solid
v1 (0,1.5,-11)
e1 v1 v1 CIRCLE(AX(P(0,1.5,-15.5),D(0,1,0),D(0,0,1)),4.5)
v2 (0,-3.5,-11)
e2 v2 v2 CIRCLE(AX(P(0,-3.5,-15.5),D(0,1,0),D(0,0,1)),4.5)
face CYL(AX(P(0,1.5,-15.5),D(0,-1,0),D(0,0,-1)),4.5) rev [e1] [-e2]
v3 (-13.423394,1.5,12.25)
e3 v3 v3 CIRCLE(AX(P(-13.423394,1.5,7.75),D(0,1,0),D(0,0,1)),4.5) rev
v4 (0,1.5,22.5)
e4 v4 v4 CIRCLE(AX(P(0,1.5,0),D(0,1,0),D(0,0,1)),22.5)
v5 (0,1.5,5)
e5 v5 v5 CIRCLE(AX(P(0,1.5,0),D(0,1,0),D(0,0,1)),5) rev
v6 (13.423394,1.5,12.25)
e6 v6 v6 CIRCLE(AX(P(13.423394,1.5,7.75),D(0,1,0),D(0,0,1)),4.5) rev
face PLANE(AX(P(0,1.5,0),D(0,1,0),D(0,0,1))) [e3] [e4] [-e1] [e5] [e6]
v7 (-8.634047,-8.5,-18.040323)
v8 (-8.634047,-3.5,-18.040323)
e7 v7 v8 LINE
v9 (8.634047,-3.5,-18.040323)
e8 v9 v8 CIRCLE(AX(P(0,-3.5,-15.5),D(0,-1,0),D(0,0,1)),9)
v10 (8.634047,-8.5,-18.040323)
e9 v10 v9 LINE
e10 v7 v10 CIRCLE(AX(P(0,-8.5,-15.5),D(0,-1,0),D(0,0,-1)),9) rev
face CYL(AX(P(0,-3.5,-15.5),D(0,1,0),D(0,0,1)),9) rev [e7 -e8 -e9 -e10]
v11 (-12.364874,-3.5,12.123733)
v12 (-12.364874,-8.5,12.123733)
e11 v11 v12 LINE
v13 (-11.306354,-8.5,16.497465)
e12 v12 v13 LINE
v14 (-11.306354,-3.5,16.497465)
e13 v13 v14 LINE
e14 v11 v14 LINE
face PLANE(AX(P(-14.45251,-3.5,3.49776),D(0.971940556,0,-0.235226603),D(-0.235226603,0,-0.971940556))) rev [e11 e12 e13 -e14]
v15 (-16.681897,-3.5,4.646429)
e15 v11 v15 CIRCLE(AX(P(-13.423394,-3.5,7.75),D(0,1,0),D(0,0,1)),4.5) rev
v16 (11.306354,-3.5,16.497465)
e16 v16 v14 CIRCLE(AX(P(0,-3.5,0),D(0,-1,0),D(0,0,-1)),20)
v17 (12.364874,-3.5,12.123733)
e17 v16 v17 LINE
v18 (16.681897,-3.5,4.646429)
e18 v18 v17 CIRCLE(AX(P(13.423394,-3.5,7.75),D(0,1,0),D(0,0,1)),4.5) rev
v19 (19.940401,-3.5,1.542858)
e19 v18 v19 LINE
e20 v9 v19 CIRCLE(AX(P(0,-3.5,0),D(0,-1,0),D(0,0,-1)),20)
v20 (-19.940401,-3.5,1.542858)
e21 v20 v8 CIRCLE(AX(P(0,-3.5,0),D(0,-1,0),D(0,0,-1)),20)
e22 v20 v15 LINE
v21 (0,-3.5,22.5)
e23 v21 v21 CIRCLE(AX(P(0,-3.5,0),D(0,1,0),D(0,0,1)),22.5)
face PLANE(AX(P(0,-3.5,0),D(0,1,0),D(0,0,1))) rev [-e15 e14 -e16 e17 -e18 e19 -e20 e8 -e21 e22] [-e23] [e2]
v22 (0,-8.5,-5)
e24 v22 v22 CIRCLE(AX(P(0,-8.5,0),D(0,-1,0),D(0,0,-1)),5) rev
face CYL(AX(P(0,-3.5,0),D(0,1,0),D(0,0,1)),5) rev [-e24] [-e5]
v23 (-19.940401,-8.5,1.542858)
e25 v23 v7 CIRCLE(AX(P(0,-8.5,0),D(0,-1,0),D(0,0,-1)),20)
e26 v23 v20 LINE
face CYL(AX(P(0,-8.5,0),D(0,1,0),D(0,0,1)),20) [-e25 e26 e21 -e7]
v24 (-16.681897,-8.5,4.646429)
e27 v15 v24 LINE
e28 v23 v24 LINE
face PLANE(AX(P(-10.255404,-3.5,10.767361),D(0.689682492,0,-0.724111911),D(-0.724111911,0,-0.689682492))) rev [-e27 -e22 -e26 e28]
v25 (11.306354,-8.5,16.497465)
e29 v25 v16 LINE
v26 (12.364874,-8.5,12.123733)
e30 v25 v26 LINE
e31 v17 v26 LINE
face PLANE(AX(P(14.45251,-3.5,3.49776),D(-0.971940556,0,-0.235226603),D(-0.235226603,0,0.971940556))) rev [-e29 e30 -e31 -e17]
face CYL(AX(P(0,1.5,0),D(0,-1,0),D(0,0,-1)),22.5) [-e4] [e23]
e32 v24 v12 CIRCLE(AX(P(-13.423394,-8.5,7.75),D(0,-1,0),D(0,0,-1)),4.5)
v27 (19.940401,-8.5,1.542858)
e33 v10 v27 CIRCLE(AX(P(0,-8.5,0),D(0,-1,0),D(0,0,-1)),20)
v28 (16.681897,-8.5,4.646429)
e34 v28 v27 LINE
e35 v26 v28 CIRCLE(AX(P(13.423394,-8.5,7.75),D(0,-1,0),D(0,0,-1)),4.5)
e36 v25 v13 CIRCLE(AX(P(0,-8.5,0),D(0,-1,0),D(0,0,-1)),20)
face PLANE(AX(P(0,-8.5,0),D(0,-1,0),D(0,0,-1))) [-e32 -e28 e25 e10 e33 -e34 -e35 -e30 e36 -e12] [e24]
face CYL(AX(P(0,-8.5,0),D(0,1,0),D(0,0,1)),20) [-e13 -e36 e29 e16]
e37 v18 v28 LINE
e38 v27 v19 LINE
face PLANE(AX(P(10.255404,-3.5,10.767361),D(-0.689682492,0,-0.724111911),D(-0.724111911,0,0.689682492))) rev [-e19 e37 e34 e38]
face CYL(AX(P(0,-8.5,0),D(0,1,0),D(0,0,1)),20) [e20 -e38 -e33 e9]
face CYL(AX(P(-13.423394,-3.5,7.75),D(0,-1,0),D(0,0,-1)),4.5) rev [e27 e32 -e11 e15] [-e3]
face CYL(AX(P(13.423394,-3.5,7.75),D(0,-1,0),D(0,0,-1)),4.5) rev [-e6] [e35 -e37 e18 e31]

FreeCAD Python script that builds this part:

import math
import FreeCAD as App
import Part
import Sketcher
Q = App.Units.Quantity

doc = App.newDocument("Part")
body = doc.addObject("PartDesign::Body", "Body")

# Sketch on XZ plane
sketch1 = body.newObject("Sketcher::SketchObject", "Sketch")
sketch1.AttachmentSupport = (doc.getObject("XZ_Plane"), [""])
sketch1.MapMode = "FlatFace"
sketch1.addGeometry(Part.Circle(App.Vector(0, 0, 0), App.Vector(0, 0, 1), 22.5), False)
sketch1.addConstraint([
    Sketcher.Constraint("Coincident", 0, 3, -1, 1),
    Sketcher.Constraint("Diameter", 0, Q("45 mm")),
])
pad1 = body.newObject("PartDesign::Pad", "Pad")
pad1.Profile = sketch1
pad1.Length = 7
pad1.Midplane = True

# Sketch on XZ plane
sketch2 = body.newObject("Sketcher::SketchObject", "Sketch001")
sketch2.AttachmentSupport = (doc.getObject("XZ_Plane"), [""])
sketch2.MapMode = "FlatFace"
sketch2.AttachmentOffset = App.Placement(App.Vector(0, 0, -3.5), App.Rotation())
sketch2.addGeometry([
    Part.Circle(App.Vector(0, -15.5, 0), App.Vector(0, 0, 1), 9),
    Part.Circle(App.Vector(13.423394, 7.75, 0), App.Vector(0, 0, 1), 9),
    Part.Circle(App.Vector(-13.423394, 7.75, 0), App.Vector(0, 0, 1), 9),
], False)
sketch2.addConstraint([
    Sketcher.Constraint("Equal", 0, 1),
    Sketcher.Constraint("Equal", 1, 2),
    Sketcher.Constraint("Symmetric", 1, 3, 2, 3, -2),
    Sketcher.Constraint("PointOnObject", 0, 3, -2),
    Sketcher.Constraint("Diameter", 0, Q("18 mm")),
    Sketcher.Constraint("DistanceY", 0, 3, -1, 1, Q("15.5 mm")),
    Sketcher.Constraint("DistanceY", -1, 1, 1, 3, Q("7.75 mm")),
    Sketcher.Constraint("DistanceX", -1, 1, 1, 3, Q("13.423394 mm")),
])
pocket1 = body.newObject("PartDesign::Pocket", "Pocket")
pocket1.Profile = sketch2
pocket1.Type = "ThroughAll"
pocket1.Reversed = True

# Sketch on XZ plane
sketch3 = body.newObject("Sketcher::SketchObject", "Sketch002")
sketch3.AttachmentSupport = (doc.getObject("XZ_Plane"), [""])
sketch3.MapMode = "FlatFace"
sketch3.AttachmentOffset = App.Placement(App.Vector(0, 0, -3.5), App.Rotation())
sketch3.addGeometry(Part.Circle(App.Vector(0, 0, 0), App.Vector(0, 0, 1), 5), False)
sketch3.addConstraint([
    Sketcher.Constraint("Coincident", 0, 3, -1, 1),
    Sketcher.Constraint("Diameter", 0, Q("10 mm")),
])
pocket2 = body.newObject("PartDesign::Pocket", "Pocket001")
pocket2.Profile = sketch3
pocket2.Type = "ThroughAll"
pocket2.Reversed = True

# Sketch on XZ plane
sketch4 = body.newObject("Sketcher::SketchObject", "Sketch003")
sketch4.AttachmentSupport = (doc.getObject("XZ_Plane"), [""])
sketch4.MapMode = "FlatFace"
sketch4.AttachmentOffset = App.Placement(App.Vector(0, 0, 3.5), App.Rotation())
sketch4.addGeometry([
    Part.ArcOfCircle(Part.Circle(App.Vector(0, 0, 0), App.Vector(0, 0, 1), 20), math.radians(-64.424357), math.radians(4.424357)),  # 0
    Part.ArcOfCircle(Part.Circle(App.Vector(13.423394, 7.75, 0), App.Vector(0, 0, 1), 9), math.radians(103.604981), math.radians(316.395019)),  # 1
    Part.ArcOfCircle(Part.Circle(App.Vector(0, 0, 0), App.Vector(0, 0, 1), 20), math.radians(55.575643), math.radians(124.424357)),  # 2
    Part.ArcOfCircle(Part.Circle(App.Vector(-13.423394, 7.75, 0), App.Vector(0, 0, 1), 9), math.radians(-136.395019), math.radians(76.395019)),  # 3
    Part.ArcOfCircle(Part.Circle(App.Vector(0, 0, 0), App.Vector(0, 0, 1), 20), math.radians(175.575643), math.radians(244.424357)),  # 4
    Part.ArcOfCircle(Part.Circle(App.Vector(0, -15.5, 0), App.Vector(0, 0, 1), 9), math.radians(-16.395019), math.radians(196.395019)),  # 5
    Part.Circle(App.Vector(0, 0, 0), App.Vector(0, 0, 1), 5),  # 6
], False)
sketch4.addConstraint([
    Sketcher.Constraint("Coincident", 0, 2, 1, 2),
    Sketcher.Constraint("Coincident", 1, 1, 2, 1),
    Sketcher.Constraint("Coincident", 2, 2, 3, 2),
    Sketcher.Constraint("Coincident", 3, 1, 4, 1),
    Sketcher.Constraint("Coincident", 4, 2, 5, 2),
    Sketcher.Constraint("Coincident", 5, 1, 0, 1),
    Sketcher.Constraint("Coincident", 0, 3, -1, 1),
    Sketcher.Constraint("Coincident", 2, 3, -1, 1),
    Sketcher.Constraint("Coincident", 4, 3, -1, 1),
    Sketcher.Constraint("Coincident", 6, 3, -1, 1),
    Sketcher.Constraint("Equal", 0, 2),
    Sketcher.Constraint("Equal", 1, 3),
    Sketcher.Constraint("Equal", 2, 4),
    Sketcher.Constraint("Equal", 3, 5),
    Sketcher.Constraint("Symmetric", 1, 3, 3, 3, -2),
    Sketcher.Constraint("PointOnObject", 5, 3, -2),
    Sketcher.Constraint("Diameter", 6, Q("10 mm")),
    Sketcher.Constraint("Radius", 0, Q("20 mm")),
    Sketcher.Constraint("Radius", 1, Q("9 mm")),
    Sketcher.Constraint("DistanceY", 5, 3, -1, 1, Q("15.5 mm")),
    Sketcher.Constraint("DistanceY", -1, 1, 1, 3, Q("7.75 mm")),
    Sketcher.Constraint("DistanceX", -1, 1, 0, 2, Q("19.940401 mm")),
])
pad2 = body.newObject("PartDesign::Pad", "Pad001")
pad2.Profile = sketch4
pad2.Length = 5

# Sketch on XZ plane
sketch5 = body.newObject("Sketcher::SketchObject", "Sketch004")
sketch5.AttachmentSupport = (doc.getObject("XZ_Plane"), [""])
sketch5.MapMode = "FlatFace"
sketch5.AttachmentOffset = App.Placement(App.Vector(0, 0, 3.5), App.Rotation())
sketch5.addGeometry([
    Part.LineSegment(App.Vector(-16.681897, 4.646429, 0), App.Vector(-19.940401, 1.542858, 0)),  # 0
    Part.ArcOfCircle(Part.Circle(App.Vector(-13.423394, 7.75, 0), App.Vector(0, 0, 1), 9), math.radians(-136.395019), math.radians(76.395019)),  # 1
    Part.LineSegment(App.Vector(-11.306354, 16.497465, 0), App.Vector(-12.364874, 12.123733, 0)),  # 2
    Part.ArcOfCircle(Part.Circle(App.Vector(-13.423394, 7.75, 0), App.Vector(0, 0, 1), 4.5), math.radians(-136.395019), math.radians(76.395019)),  # 3
    Part.LineSegment(App.Vector(12.364874, 12.123733, 0), App.Vector(11.306354, 16.497465, 0)),  # 4
    Part.ArcOfCircle(Part.Circle(App.Vector(13.423394, 7.75, 0), App.Vector(0, 0, 1), 9), math.radians(103.604981), math.radians(316.395019)),  # 5
    Part.LineSegment(App.Vector(19.940401, 1.542858, 0), App.Vector(16.681897, 4.646429, 0)),  # 6
    Part.ArcOfCircle(Part.Circle(App.Vector(13.423394, 7.75, 0), App.Vector(0, 0, 1), 4.5), math.radians(103.604981), math.radians(316.395019)),  # 7
], False)
sketch5.addConstraint([
    Sketcher.Constraint("Coincident", 0, 2, 1, 1),
    Sketcher.Constraint("Coincident", 1, 2, 2, 1),
    Sketcher.Constraint("Coincident", 2, 2, 3, 2),
    Sketcher.Constraint("Coincident", 3, 1, 0, 1),
    Sketcher.Constraint("Coincident", 4, 2, 5, 1),
    Sketcher.Constraint("Coincident", 5, 2, 6, 1),
    Sketcher.Constraint("Coincident", 6, 2, 7, 2),
    Sketcher.Constraint("Coincident", 7, 1, 4, 1),
    Sketcher.Constraint("Coincident", 3, 3, 1, 3),
    Sketcher.Constraint("Coincident", 7, 3, 5, 3),
    Sketcher.Constraint("Equal", 1, 5),
    Sketcher.Constraint("Equal", 3, 7),
    Sketcher.Constraint("Symmetric", 1, 3, 5, 3, -2),
    Sketcher.Constraint("Horizontal", 1, 2, 4, 2),
    Sketcher.Constraint("Horizontal", 0, 2, 5, 2),
    Sketcher.Constraint("Horizontal", 3, 1, 6, 2),
    Sketcher.Constraint("Horizontal", 2, 2, 7, 1),
    Sketcher.Constraint("Radius", 1, Q("9 mm")),
    Sketcher.Constraint("Radius", 3, Q("4.5 mm")),
    Sketcher.Constraint("DistanceY", -1, 1, 1, 3, Q("7.75 mm")),
    Sketcher.Constraint("DistanceX", 0, 2, -1, 1, Q("19.940401 mm")),
    Sketcher.Constraint("DistanceY", -1, 1, 3, 1, Q("4.646429 mm")),
    Sketcher.Constraint("DistanceX", 1, 3, 1, 2, Q("2.117039 mm")),
    Sketcher.Constraint("DistanceX", 1, 2, 5, 3, Q("24.729748 mm")),
    Sketcher.Constraint("DistanceX", 1, 3, 2, 2, Q("1.05852 mm")),
])
pad3 = body.newObject("PartDesign::Pad", "Pad002")
pad3.Profile = sketch5
pad3.Length = 5

# Sketch on XZ plane
sketch6 = body.newObject("Sketcher::SketchObject", "Sketch005")
sketch6.AttachmentSupport = (doc.getObject("XZ_Plane"), [""])
sketch6.MapMode = "FlatFace"
sketch6.AttachmentOffset = App.Placement(App.Vector(0, 0, -3.5), App.Rotation())
sketch6.addGeometry([
    Part.ArcOfCircle(Part.Circle(App.Vector(0, -15.5, 0), App.Vector(0, 0, 1), 9), math.radians(-41.535383), math.radians(221.535383)),  # 0
    Part.ArcOfCircle(Part.Circle(App.Vector(0, 0, 0), App.Vector(0, 0, 1), 22.5), math.radians(167.422683), math.radians(252.577317)),  # 1
    Part.ArcOfCircle(Part.Circle(App.Vector(-13.423394, 7.75, 0), App.Vector(0, 0, 1), 9), math.radians(-161.535383), math.radians(101.535383)),  # 2
    Part.ArcOfCircle(Part.Circle(App.Vector(0, 0, 0), App.Vector(0, 0, 1), 22.5), math.radians(47.422683), math.radians(132.577317)),  # 3
    Part.ArcOfCircle(Part.Circle(App.Vector(13.423394, 7.75, 0), App.Vector(0, 0, 1), 9), math.radians(78.464617), math.radians(341.535383)),  # 4
    Part.ArcOfCircle(Part.Circle(App.Vector(0, 0, 0), App.Vector(0, 0, 1), 22.5), math.radians(-72.577317), math.radians(12.577317)),  # 5
], False)
sketch6.addConstraint([
    Sketcher.Constraint("Coincident", 0, 2, 1, 2),
    Sketcher.Constraint("Coincident", 1, 1, 2, 1),
    Sketcher.Constraint("Coincident", 2, 2, 3, 2),
    Sketcher.Constraint("Coincident", 3, 1, 4, 1),
    Sketcher.Constraint("Coincident", 4, 2, 5, 2),
    Sketcher.Constraint("Coincident", 5, 1, 0, 1),
    Sketcher.Constraint("Coincident", 1, 3, -1, 1),
    Sketcher.Constraint("Coincident", 3, 3, -1, 1),
    Sketcher.Constraint("Coincident", 5, 3, -1, 1),
    Sketcher.Constraint("Equal", 0, 2),
    Sketcher.Constraint("Equal", 1, 3),
    Sketcher.Constraint("Equal", 2, 4),
    Sketcher.Constraint("Equal", 3, 5),
    Sketcher.Constraint("Symmetric", 2, 3, 4, 3, -2),
    Sketcher.Constraint("PointOnObject", 0, 3, -2),
    Sketcher.Constraint("Radius", 0, Q("9 mm")),
    Sketcher.Constraint("Radius", 1, Q("22.5 mm")),
    Sketcher.Constraint("DistanceY", 0, 3, -1, 1, Q("15.5 mm")),
    Sketcher.Constraint("DistanceY", -1, 1, 2, 3, Q("7.75 mm")),
    Sketcher.Constraint("DistanceX", 1, 1, -1, 1, Q("21.960069 mm")),
])
pocket3 = body.newObject("PartDesign::Pocket", "Pocket002")
pocket3.Profile = sketch6
pocket3.Length = 7
pocket3.Reversed = True

# Sketch on XZ plane
sketch7 = body.newObject("Sketcher::SketchObject", "Sketch006")
sketch7.AttachmentSupport = (doc.getObject("XZ_Plane"), [""])
sketch7.MapMode = "FlatFace"
sketch7.AttachmentOffset = App.Placement(App.Vector(0, 0, -1.5), App.Rotation())
sketch7.addGeometry([
    Part.Circle(App.Vector(0, 0, 0), App.Vector(0, 0, 1), 22.5),  # 0
    Part.Circle(App.Vector(0, -15.5, 0), App.Vector(0, 0, 1), 4.5),  # 1
    Part.Circle(App.Vector(13.423394, 7.75, 0), App.Vector(0, 0, 1), 4.5),  # 2
    Part.Circle(App.Vector(-13.423394, 7.75, 0), App.Vector(0, 0, 1), 4.5),  # 3
    Part.Circle(App.Vector(0, 0, 0), App.Vector(0, 0, 1), 5),  # 4
], False)
sketch7.addConstraint([
    Sketcher.Constraint("Coincident", 0, 3, -1, 1),
    Sketcher.Constraint("Coincident", 4, 3, -1, 1),
    Sketcher.Constraint("Equal", 1, 2),
    Sketcher.Constraint("Equal", 2, 3),
    Sketcher.Constraint("Symmetric", 2, 3, 3, 3, -2),
    Sketcher.Constraint("PointOnObject", 1, 3, -2),
    Sketcher.Constraint("Diameter", 0, Q("45 mm")),
    Sketcher.Constraint("Diameter", 1, Q("9 mm")),
    Sketcher.Constraint("Diameter", 4, Q("10 mm")),
    Sketcher.Constraint("DistanceY", 1, 3, -1, 1, Q("15.5 mm")),
    Sketcher.Constraint("DistanceY", -1, 1, 2, 3, Q("7.75 mm")),
    Sketcher.Constraint("DistanceX", -1, 1, 2, 3, Q("13.423394 mm")),
])
pad4 = body.newObject("PartDesign::Pad", "Pad003")
pad4.Profile = sketch7
pad4.Length = 5

doc.recompute()
